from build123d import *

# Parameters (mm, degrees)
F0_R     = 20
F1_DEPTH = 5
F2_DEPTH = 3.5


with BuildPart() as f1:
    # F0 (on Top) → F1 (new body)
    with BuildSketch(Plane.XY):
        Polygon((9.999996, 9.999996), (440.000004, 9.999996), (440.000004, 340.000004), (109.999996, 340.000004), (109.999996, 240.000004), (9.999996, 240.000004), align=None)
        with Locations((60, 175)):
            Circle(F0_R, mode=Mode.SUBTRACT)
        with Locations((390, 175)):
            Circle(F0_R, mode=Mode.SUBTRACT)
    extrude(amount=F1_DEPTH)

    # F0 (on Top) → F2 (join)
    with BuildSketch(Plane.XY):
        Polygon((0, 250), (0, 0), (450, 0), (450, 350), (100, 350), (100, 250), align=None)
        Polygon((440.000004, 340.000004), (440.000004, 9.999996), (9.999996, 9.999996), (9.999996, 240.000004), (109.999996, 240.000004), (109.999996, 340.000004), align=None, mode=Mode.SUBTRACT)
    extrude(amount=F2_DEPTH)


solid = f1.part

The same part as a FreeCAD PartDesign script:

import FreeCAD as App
import Part
import Sketcher

doc = App.newDocument("Part")
body = doc.addObject("PartDesign::Body", "Body")

sketch1 = doc.addObject("Sketcher::SketchObject", "Sketch")
body.addObject(sketch1)
sketch1.AttachmentSupport = (doc.XY_Plane, [""])
sketch1.MapMode = "FlatFace"
sketch1.addGeometry([
    Part.LineSegment(App.Vector(10, 10, 0), App.Vector(440, 10, 0)),
    Part.LineSegment(App.Vector(440, 10, 0), App.Vector(440, 340, 0)),
    Part.LineSegment(App.Vector(440, 340, 0), App.Vector(110, 340, 0)),
    Part.LineSegment(App.Vector(110, 340, 0), App.Vector(110, 240, 0)),
    Part.LineSegment(App.Vector(110, 240, 0), App.Vector(10, 240, 0)),
    Part.LineSegment(App.Vector(10, 240, 0), App.Vector(10, 10, 0)),
    Part.Circle(App.Vector(60, 175, 0), App.Vector(0, 0, 1), 20),
    Part.Circle(App.Vector(390, 175, 0), App.Vector(0, 0, 1), 20),
], False)
sketch1.addConstraint([
    Sketcher.Constraint("Coincident", 0, 2, 1, 1),
    Sketcher.Constraint("Coincident", 1, 2, 2, 1),
    Sketcher.Constraint("Coincident", 2, 2, 3, 1),
    Sketcher.Constraint("Coincident", 3, 2, 4, 1),
    Sketcher.Constraint("Coincident", 4, 2, 5, 1),
    Sketcher.Constraint("Coincident", 5, 2, 0, 1),
    Sketcher.Constraint("Horizontal", 0),
    Sketcher.Constraint("Vertical", 1),
    Sketcher.Constraint("Horizontal", 2),
    Sketcher.Constraint("Vertical", 3),
    Sketcher.Constraint("Horizontal", 4),
    Sketcher.Constraint("Vertical", 5),
    Sketcher.Constraint("Equal", 6, 7),
    Sketcher.Constraint("Horizontal", 6, 3, 7, 3),
    Sketcher.Constraint("Equal", 2, 1),
    Sketcher.Constraint("Equal", 4, 3),
    Sketcher.Constraint("Diameter", 6, 40.0),
    Sketcher.Constraint("DistanceX", 4, 2, 4, 1, 100.0),
    Sketcher.Constraint("DistanceX", -1, 1, 6, 3, 60.0),
    Sketcher.Constraint("DistanceY", -1, 1, 6, 3, 175.0),
    Sketcher.Constraint("DistanceX", -1, 1, 7, 3, 390.0),
    Sketcher.Constraint("DistanceX", 0, 1, 0, 2, 430.000008),
    Sketcher.Constraint("DistanceX", -1, 1, 0, 2, 440.000004),
    Sketcher.Constraint("DistanceY", -1, 1, 0, 2, 9.999996),
])
pad1 = doc.addObject("PartDesign::Pad", "Pad")
body.addObject(pad1)
pad1.Profile = sketch1
pad1.Length = 5

sketch2 = doc.addObject("Sketcher::SketchObject", "Sketch001")
body.addObject(sketch2)
sketch2.AttachmentSupport = (doc.XY_Plane, [""])
sketch2.MapMode = "FlatFace"
sketch2.addGeometry([
    Part.LineSegment(App.Vector(0, 250, 0), App.Vector(0, 0, 0)),
    Part.LineSegment(App.Vector(0, 0, 0), App.Vector(450, 0, 0)),
    Part.LineSegment(App.Vector(450, 0, 0), App.Vector(450, 350, 0)),
    Part.LineSegment(App.Vector(450, 350, 0), App.Vector(100, 350, 0)),
    Part.LineSegment(App.Vector(100, 350, 0), App.Vector(100, 250, 0)),
    Part.LineSegment(App.Vector(100, 250, 0), App.Vector(0, 250, 0)),
    Part.LineSegment(App.Vector(110, 340, 0), App.Vector(440, 340, 0)),
    Part.LineSegment(App.Vector(440, 340, 0), App.Vector(440, 10, 0)),
    Part.LineSegment(App.Vector(440, 10, 0), App.Vector(10, 10, 0)),
    Part.LineSegment(App.Vector(10, 10, 0), App.Vector(10, 240, 0)),
    Part.LineSegment(App.Vector(10, 240, 0), App.Vector(110, 240, 0)),
    Part.LineSegment(App.Vector(110, 240, 0), App.Vector(110, 340, 0)),
], False)
sketch2.addConstraint([
    Sketcher.Constraint("Coincident", 0, 2, 1, 1),
    Sketcher.Constraint("Coincident", 1, 2, 2, 1),
    Sketcher.Constraint("Coincident", 2, 2, 3, 1),
    Sketcher.Constraint("Coincident", 3, 2, 4, 1),
    Sketcher.Constraint("Coincident", 4, 2, 5, 1),
    Sketcher.Constraint("Coincident", 5, 2, 0, 1),
    Sketcher.Constraint("Coincident", 6, 2, 7, 1),
    Sketcher.Constraint("Coincident", 7, 2, 8, 1),
    Sketcher.Constraint("Coincident", 8, 2, 9, 1),
    Sketcher.Constraint("Coincident", 9, 2, 10, 1),
    Sketcher.Constraint("Coincident", 10, 2, 11, 1),
    Sketcher.Constraint("Coincident", 11, 2, 6, 1),
    Sketcher.Constraint("Vertical", 0),
    Sketcher.Constraint("Horizontal", 1),
    Sketcher.Constraint("Vertical", 2),
    Sketcher.Constraint("Horizontal", 3),
    Sketcher.Constraint("Vertical", 4),
    Sketcher.Constraint("Horizontal", 5),
    Sketcher.Constraint("Horizontal", 6),
    Sketcher.Constraint("Vertical", 7),
    Sketcher.Constraint("Horizontal", 8),
    Sketcher.Constraint("Vertical", 9),
    Sketcher.Constraint("Horizontal", 10),
    Sketcher.Constraint("Vertical", 11),
    Sketcher.Constraint("Coincident", 0, 2, -1, 1),
    Sketcher.Constraint("Equal", 5, 10),
    Sketcher.Constraint("Equal", 3, 2),
    Sketcher.Constraint("Equal", 10, 4),
    Sketcher.Constraint("Equal", 6, 7),
    Sketcher.Constraint("Equal", 4, 11),
    Sketcher.Constraint("DistanceX", 1, 1, 1, 2, 450.0),
    Sketcher.Constraint("DistanceX", 3, 2, 3, 1, 350.0),
    Sketcher.Constraint("DistanceX", 6, 1, 6, 2, 330.000008),
    Sketcher.Constraint("DistanceX", -1, 1, 6, 2, 440.000004),
    Sketcher.Constraint("DistanceY", -1, 1, 6, 2, 340.000004),
])
pad2 = doc.addObject("PartDesign::Pad", "Pad001")
body.addObject(pad2)
pad2.Profile = sketch2
pad2.Length = 3.5

doc.recompute()
